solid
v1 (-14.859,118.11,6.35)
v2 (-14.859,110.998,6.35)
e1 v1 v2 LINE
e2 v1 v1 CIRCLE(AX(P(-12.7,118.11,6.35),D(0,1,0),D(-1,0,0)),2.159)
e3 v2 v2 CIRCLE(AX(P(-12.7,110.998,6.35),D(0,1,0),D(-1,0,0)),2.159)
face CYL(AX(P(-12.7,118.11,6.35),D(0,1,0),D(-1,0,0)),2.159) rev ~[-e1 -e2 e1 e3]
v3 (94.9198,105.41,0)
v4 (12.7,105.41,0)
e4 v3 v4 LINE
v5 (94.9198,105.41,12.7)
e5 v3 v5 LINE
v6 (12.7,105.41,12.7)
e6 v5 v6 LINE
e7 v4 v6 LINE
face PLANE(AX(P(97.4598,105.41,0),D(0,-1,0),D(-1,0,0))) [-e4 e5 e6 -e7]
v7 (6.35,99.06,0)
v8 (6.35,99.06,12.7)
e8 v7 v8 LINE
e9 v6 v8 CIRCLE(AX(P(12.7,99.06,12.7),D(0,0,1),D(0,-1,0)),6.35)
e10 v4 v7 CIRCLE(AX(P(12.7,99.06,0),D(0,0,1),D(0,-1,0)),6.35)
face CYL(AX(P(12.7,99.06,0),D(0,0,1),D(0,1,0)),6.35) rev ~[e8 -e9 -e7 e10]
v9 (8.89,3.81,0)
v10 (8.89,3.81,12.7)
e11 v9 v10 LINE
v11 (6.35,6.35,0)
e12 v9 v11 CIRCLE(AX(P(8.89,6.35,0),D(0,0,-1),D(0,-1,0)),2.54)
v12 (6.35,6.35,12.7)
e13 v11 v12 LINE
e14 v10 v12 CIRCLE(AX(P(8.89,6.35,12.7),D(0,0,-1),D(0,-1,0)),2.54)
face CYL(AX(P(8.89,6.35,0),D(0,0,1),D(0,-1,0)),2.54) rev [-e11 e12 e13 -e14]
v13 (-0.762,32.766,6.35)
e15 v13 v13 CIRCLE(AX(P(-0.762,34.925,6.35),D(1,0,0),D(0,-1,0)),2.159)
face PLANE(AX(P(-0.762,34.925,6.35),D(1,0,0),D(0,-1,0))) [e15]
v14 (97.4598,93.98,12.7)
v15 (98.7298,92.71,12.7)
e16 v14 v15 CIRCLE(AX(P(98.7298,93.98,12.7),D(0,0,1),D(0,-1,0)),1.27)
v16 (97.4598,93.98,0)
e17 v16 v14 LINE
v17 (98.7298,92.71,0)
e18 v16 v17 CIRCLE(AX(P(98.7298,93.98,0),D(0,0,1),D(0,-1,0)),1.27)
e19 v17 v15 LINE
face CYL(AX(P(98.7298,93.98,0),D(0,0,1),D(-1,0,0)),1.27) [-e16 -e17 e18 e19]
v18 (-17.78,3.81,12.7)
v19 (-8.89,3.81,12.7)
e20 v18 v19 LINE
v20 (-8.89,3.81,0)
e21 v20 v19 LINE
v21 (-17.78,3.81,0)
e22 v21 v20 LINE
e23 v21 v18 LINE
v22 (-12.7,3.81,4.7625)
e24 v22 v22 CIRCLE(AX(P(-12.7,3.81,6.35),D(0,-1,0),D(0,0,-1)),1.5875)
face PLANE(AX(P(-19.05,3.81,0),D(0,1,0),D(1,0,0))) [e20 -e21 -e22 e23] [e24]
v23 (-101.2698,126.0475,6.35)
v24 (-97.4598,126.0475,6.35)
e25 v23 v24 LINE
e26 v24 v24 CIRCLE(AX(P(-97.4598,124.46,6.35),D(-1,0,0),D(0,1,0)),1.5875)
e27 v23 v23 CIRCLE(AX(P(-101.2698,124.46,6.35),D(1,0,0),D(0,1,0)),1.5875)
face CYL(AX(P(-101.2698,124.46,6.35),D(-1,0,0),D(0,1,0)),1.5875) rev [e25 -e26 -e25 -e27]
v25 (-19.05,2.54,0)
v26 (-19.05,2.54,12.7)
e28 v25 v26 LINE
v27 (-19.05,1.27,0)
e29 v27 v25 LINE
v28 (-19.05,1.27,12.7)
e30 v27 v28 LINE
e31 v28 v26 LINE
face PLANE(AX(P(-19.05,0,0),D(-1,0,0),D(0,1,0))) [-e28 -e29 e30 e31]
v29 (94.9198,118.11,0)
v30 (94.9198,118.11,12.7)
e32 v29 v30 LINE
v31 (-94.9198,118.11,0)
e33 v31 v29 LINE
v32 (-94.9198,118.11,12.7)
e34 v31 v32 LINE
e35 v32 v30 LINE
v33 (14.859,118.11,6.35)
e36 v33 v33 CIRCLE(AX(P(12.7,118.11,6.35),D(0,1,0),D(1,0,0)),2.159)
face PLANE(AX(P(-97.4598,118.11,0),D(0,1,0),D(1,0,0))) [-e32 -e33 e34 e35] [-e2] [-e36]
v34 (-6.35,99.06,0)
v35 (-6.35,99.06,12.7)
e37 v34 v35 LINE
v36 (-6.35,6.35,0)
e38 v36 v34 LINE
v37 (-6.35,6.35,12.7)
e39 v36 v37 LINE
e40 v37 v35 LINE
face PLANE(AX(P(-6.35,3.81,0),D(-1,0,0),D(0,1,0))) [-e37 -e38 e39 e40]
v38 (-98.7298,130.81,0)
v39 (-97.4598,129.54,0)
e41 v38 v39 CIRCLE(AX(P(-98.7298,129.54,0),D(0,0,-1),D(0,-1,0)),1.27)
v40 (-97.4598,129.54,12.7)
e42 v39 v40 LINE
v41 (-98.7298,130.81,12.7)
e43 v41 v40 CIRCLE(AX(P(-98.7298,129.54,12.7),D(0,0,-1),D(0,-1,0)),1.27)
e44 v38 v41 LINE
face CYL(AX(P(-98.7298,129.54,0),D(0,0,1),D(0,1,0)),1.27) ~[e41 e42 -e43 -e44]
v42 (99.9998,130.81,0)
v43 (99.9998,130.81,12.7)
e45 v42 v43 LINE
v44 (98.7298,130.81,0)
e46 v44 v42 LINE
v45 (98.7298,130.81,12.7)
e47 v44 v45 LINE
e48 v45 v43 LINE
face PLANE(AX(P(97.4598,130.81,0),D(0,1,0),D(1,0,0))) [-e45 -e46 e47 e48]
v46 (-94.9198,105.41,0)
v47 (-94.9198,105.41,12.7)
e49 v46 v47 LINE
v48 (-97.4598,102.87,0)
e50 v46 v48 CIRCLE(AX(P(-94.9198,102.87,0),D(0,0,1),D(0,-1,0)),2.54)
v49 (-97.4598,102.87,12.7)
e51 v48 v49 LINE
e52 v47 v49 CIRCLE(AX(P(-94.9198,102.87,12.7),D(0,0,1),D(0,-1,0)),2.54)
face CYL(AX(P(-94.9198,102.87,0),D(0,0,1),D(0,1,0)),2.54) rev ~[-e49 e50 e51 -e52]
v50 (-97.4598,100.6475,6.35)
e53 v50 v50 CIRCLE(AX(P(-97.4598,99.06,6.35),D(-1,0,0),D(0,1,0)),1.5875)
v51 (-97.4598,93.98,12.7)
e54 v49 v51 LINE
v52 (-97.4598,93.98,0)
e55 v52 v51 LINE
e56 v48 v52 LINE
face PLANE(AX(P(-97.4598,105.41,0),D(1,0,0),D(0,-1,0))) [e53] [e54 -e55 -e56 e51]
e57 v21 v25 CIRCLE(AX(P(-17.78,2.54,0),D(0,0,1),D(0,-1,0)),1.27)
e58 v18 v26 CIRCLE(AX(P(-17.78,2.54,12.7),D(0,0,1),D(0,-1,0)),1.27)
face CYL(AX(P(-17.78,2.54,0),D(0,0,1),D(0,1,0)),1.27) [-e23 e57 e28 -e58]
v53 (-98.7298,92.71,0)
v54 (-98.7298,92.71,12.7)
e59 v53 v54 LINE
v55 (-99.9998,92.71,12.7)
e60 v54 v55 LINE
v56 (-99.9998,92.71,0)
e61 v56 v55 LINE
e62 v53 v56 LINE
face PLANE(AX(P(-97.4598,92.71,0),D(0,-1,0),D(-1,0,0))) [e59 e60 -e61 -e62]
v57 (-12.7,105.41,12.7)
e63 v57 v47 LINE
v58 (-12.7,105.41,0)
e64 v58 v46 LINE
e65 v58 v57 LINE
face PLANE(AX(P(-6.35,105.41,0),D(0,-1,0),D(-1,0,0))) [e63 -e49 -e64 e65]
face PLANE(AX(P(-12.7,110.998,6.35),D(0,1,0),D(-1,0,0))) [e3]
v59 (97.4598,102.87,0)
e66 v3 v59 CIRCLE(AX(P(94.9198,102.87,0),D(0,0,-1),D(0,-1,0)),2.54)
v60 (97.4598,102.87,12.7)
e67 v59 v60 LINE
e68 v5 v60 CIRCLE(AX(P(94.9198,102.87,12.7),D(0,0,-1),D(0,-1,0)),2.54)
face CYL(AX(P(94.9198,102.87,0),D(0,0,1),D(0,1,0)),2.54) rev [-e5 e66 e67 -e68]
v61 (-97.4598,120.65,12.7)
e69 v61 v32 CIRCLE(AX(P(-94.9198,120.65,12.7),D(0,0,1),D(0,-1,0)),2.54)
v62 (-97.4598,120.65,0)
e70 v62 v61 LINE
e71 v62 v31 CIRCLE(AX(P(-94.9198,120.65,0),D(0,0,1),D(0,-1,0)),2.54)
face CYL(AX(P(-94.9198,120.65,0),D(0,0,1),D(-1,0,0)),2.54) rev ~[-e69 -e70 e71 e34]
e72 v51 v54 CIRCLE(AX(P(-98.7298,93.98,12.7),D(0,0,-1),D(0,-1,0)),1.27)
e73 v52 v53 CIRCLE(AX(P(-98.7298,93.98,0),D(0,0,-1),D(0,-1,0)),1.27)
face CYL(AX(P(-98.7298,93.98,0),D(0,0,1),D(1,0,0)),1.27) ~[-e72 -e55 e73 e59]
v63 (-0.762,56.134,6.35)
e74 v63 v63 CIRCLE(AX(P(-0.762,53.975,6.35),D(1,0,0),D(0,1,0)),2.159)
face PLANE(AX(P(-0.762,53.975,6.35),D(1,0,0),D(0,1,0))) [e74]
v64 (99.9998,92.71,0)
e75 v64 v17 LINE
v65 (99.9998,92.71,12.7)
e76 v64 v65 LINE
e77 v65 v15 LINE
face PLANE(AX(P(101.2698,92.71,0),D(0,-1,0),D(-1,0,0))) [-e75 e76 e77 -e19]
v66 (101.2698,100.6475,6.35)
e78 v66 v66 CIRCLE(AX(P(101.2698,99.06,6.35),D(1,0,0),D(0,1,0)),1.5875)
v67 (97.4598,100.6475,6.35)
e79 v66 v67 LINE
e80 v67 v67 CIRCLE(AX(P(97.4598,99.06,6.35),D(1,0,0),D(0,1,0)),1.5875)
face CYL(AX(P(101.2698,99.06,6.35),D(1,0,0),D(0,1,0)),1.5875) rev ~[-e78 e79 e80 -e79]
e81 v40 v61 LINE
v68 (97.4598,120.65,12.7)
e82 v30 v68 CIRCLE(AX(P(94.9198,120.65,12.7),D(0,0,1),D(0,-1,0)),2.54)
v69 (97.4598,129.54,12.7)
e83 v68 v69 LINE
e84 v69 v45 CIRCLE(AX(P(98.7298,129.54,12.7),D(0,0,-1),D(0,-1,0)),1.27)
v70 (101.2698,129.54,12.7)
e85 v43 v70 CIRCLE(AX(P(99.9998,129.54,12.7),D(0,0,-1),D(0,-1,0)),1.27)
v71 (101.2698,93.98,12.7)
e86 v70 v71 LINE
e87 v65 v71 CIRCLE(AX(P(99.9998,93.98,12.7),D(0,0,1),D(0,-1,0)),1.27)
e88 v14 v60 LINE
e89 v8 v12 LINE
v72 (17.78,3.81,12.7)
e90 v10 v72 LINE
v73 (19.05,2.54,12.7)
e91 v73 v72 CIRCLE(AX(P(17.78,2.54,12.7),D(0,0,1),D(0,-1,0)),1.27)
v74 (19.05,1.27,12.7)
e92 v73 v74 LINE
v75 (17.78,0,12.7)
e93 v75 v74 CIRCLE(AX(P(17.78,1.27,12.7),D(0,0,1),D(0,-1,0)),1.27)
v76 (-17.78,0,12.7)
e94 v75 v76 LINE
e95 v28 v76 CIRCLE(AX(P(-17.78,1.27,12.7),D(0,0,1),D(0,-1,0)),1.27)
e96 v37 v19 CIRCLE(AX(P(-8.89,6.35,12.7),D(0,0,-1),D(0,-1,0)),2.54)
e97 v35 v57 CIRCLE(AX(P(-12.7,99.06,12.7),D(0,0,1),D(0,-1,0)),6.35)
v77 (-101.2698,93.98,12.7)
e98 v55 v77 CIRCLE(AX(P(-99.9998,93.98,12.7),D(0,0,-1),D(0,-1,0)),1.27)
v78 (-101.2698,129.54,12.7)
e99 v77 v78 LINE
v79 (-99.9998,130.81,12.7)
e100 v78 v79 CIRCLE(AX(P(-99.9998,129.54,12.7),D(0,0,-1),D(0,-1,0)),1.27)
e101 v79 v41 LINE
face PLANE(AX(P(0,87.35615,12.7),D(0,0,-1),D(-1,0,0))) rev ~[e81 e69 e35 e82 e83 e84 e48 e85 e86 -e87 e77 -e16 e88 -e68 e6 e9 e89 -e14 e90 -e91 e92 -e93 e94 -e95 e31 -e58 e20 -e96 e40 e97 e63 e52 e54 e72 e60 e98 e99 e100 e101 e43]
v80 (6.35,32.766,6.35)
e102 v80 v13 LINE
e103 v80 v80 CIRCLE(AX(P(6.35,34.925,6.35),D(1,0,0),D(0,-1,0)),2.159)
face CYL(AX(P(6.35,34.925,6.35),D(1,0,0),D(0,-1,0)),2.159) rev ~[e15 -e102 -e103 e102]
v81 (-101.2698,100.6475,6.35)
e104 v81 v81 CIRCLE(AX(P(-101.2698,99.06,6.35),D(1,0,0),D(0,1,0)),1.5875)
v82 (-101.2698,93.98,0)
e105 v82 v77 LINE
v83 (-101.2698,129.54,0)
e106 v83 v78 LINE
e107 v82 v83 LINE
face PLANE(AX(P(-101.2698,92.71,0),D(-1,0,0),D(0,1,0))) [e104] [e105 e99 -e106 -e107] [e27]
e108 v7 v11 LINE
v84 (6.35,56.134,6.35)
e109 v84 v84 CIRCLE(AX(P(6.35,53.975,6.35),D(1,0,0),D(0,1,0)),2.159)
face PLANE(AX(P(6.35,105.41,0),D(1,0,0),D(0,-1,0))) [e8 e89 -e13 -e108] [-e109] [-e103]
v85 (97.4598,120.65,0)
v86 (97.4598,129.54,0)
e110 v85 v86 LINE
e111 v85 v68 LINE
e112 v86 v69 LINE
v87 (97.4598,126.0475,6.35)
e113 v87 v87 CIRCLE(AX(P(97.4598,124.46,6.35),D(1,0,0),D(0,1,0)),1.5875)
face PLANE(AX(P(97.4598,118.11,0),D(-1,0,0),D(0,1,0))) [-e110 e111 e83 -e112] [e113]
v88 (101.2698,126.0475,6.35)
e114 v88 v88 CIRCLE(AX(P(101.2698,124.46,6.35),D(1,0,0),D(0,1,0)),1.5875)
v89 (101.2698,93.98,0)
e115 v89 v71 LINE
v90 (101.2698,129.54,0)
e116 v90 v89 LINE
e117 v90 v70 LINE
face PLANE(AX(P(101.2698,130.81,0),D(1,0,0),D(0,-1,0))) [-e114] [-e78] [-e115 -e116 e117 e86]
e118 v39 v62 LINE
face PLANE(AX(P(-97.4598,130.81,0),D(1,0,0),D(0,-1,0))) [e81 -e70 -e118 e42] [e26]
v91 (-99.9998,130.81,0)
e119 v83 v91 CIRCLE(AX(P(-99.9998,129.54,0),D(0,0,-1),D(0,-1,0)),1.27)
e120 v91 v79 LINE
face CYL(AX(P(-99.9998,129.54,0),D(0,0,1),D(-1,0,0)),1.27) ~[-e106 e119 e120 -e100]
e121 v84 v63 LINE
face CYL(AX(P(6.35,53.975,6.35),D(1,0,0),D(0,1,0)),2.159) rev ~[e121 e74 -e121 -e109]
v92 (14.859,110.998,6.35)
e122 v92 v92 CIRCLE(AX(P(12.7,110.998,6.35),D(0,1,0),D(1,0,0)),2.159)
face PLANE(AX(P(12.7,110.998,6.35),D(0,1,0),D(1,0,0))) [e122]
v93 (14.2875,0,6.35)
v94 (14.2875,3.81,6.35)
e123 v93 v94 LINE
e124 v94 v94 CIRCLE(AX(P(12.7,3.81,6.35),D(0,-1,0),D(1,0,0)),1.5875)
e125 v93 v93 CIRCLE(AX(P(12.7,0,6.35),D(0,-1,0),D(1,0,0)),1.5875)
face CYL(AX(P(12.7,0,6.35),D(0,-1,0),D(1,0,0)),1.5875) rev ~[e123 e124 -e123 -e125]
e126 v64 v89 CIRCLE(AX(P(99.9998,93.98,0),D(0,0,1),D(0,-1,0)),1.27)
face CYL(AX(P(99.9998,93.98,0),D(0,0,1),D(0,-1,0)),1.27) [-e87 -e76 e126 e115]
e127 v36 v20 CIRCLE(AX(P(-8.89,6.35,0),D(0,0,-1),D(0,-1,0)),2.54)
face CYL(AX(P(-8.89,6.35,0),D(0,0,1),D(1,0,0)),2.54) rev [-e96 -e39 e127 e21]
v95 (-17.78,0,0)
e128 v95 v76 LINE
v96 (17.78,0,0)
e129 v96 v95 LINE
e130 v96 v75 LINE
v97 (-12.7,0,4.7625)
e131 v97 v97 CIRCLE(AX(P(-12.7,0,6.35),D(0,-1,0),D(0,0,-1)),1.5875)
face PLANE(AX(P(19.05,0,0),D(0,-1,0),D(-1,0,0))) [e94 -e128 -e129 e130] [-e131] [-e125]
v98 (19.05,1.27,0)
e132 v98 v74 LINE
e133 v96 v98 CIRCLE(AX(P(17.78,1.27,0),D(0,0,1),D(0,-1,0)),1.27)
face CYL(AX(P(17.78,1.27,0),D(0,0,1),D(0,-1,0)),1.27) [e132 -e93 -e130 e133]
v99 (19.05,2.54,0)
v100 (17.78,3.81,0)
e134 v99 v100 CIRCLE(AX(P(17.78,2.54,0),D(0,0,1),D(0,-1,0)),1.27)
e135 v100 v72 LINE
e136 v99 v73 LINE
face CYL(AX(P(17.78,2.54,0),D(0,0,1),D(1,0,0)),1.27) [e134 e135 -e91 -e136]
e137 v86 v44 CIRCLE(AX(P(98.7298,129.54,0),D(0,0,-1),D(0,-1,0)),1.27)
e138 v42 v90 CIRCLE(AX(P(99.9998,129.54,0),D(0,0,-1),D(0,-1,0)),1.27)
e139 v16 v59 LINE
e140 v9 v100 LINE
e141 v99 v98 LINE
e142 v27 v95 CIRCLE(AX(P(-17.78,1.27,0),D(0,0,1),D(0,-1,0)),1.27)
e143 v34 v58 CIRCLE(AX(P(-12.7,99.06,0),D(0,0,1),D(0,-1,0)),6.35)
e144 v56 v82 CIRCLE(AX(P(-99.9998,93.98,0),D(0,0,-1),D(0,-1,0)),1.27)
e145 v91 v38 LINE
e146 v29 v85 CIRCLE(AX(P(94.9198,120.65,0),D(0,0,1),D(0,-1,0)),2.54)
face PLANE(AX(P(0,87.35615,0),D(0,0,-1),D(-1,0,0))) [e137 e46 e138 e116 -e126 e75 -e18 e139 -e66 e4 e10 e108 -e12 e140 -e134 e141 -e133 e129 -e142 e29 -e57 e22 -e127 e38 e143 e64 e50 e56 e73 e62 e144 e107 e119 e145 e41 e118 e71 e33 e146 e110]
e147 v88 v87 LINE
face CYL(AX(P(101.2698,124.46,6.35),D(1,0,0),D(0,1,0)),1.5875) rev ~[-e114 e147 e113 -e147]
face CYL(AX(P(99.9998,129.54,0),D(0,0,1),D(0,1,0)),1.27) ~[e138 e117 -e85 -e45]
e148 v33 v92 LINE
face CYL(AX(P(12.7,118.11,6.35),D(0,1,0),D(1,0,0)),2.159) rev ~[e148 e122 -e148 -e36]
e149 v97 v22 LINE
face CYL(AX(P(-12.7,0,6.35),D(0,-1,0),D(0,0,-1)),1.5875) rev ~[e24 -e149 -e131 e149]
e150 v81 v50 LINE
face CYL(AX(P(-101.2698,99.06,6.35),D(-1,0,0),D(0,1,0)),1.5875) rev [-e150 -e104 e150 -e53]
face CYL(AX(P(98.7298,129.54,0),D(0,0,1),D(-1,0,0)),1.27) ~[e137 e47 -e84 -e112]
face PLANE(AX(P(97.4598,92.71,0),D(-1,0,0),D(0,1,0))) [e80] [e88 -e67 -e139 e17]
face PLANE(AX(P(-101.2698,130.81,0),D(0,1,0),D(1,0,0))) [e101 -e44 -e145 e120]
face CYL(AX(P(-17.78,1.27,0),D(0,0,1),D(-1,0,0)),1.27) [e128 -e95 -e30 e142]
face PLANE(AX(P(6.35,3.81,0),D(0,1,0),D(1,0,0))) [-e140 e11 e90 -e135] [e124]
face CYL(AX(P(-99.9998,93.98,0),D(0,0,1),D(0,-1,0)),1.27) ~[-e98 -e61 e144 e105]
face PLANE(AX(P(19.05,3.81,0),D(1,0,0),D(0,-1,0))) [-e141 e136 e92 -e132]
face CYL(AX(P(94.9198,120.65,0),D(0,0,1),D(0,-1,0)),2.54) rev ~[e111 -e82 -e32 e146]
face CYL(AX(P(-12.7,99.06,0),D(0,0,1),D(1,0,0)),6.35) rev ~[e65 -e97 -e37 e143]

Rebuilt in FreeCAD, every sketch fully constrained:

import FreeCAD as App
import Part
import Sketcher
from FreeCAD import Vector
Q = App.Units.Quantity


def edges_at(feature, points):
    """Names of the edges that pass closest to the given points."""
    edges = feature.Shape.Edges
    near = lambda p: min(range(len(edges)), key=lambda i: edges[i].distToShape(Part.Vertex(*p))[0])
    return sorted({f"Edge{near(p) + 1}" for p in points})


def add_polygon(sketch, points):
    """Adds a closed chain of lines whose ends are joined by coincident constraints."""
    first, n = sketch.GeometryCount, len(points)
    for a, b in zip(points, points[1:] + points[:1]):
        sketch.addGeometry(Part.LineSegment(App.Vector(*a, 0), App.Vector(*b, 0)), False)
    for i in range(n):
        sketch.addConstraint(Sketcher.Constraint("Coincident", first + i, 2, first + (i + 1) % n, 1))

doc = App.newDocument("Part")
params = doc.addObject("Spreadsheet::Sheet", "Params")
for row, (alias, value) in enumerate([
    ("sketch1_height", "4 in"),
    ("sketch1_width", "1.5 in"),
    ("sketch1_width2", "0.5 in"),
    ("sketch1_width3", "0.15 in"),
    ("sketch1_width4", "3.587 in"),
    ("pad1_length", "0.5 in"),
    ("sketch2_diameter", "0.125 in"),
    ("pocket1_length", "0.25 in"),
    ("sketch3_diameter", "0.125 in"),
    ("pocket2_length", "0.15 in"),
    ("fillet_radius", "0.25 in"),
    ("fillet2_radius", "0.1 in"),
    ("sketch4_diameter", "0.17 in"),
    ("pocket3_length", "0.28 in"),
    ("sketch5_diameter", "0.17 in"),
    ("pocket4_length", "0.28 in"),
    ("fillet3_radius", "0.05 in"),
], start=1):
    params.set(f"A{row}", alias)
    params.set(f"B{row}", "=" + value)
    params.setAlias(f"B{row}", alias)

body = doc.addObject("PartDesign::Body", "Body")

sketch1 = body.newObject("Sketcher::SketchObject", "Sketch")
sketch1.AttachmentSupport = (doc.getObject("XY_Plane"), [""])
sketch1.MapMode = "FlatFace"
add_polygon(sketch1, [(-19.1, 0), (19.1, 0), (19.1, 3.8), (6.3, 3.8), (6.3, 105.4), (97.5, 105.4), (97.5, 92.7), (101.3, 92.7), (101.3, 130.8), (97.5, 130.8), (97.5, 118.1), (-97.5, 118.1), (-97.5, 130.8), (-101.3, 130.8), (-101.3, 92.7), (-97.5, 92.7), (-97.5, 105.4), (-6.3, 105.4), (-6.3, 3.8), (-19.1, 3.8)])
sketch1.addConstraint([
    Sketcher.Constraint("Horizontal", 0),
    Sketcher.Constraint("Vertical", 1),
    Sketcher.Constraint("Horizontal", 2),
    Sketcher.Constraint("Vertical", 3),
    Sketcher.Constraint("Horizontal", 4),
    Sketcher.Constraint("Vertical", 5),
    Sketcher.Constraint("Horizontal", 6),
    Sketcher.Constraint("Vertical", 7),
    Sketcher.Constraint("Horizontal", 8),
    Sketcher.Constraint("Vertical", 9),
    Sketcher.Constraint("Horizontal", 10),
    Sketcher.Constraint("Vertical", 11),
    Sketcher.Constraint("Horizontal", 12),
    Sketcher.Constraint("Vertical", 13),
    Sketcher.Constraint("Horizontal", 14),
    Sketcher.Constraint("Vertical", 15),
    Sketcher.Constraint("Horizontal", 16),
    Sketcher.Constraint("Vertical", 17),
    Sketcher.Constraint("Horizontal", 18),
    Sketcher.Constraint("Vertical", 19),
    Sketcher.Constraint("Symmetric", 0, 2, 19, 2, -1, 1),
    Sketcher.Constraint("Symmetric", 8, 2, 11, 2, -2),
    Sketcher.Constraint("Symmetric", 6, 2, 13, 2, -2),
    Sketcher.Constraint("Symmetric", 4, 2, 15, 2, -2),
    Sketcher.Constraint("Symmetric", 2, 2, 17, 2, -2),
    Sketcher.Constraint("Vertical", 5, 2, 8, 2),
    Sketcher.Constraint("Equal", 14, 1),
    Sketcher.Constraint("Equal", 18, 5),
    Sketcher.Constraint("Equal", 0, 7),
    Sketcher.Constraint("Equal", 5, 9),
    Sketcher.Constraint("DistanceY", 3, 1, 3, 2, Q("4 in")),
    Sketcher.Constraint("DistanceX", 0, 1, 0, 2, Q("1.5 in")),
    Sketcher.Constraint("DistanceX", 2, 2, 2, 1, Q("0.5 in")),
    Sketcher.Constraint("DistanceX", 6, 1, 6, 2, Q("0.15 in")),
    Sketcher.Constraint("DistanceX", 4, 1, 4, 2, Q("3.587 in")),
])
sketch1.setExpression("Constraints[50]", "Params.sketch1_height")
sketch1.setExpression("Constraints[51]", "Params.sketch1_width")
sketch1.setExpression("Constraints[52]", "Params.sketch1_width2")
sketch1.setExpression("Constraints[53]", "Params.sketch1_width3")
sketch1.setExpression("Constraints[54]", "Params.sketch1_width4")
pad1 = body.newObject("PartDesign::Pad", "Pad")
pad1.Profile = sketch1
pad1.setExpression("Length", "Params.pad1_length")

sketch2 = body.newObject("Sketcher::SketchObject", "Sketch001")
sketch2.AttachmentSupport = (doc.getObject("YZ_Plane"), [""])
sketch2.MapMode = "FlatFace"
sketch2.AttachmentOffset = App.Placement(Vector(0, 0, 3.987 * 25.4), App.Rotation())
sketch2.addGeometry([
    Part.Circle(Vector(124.5, 6.3, 0), Vector(0, 0, 1), 1.6),
    Part.Circle(Vector(99.1, 6.3, 0), Vector(0, 0, 1), 1.6),
], False)
sketch2.addConstraint([
    Sketcher.Constraint("Equal", 0, 1),
    Sketcher.Constraint("Horizontal", 0, 3, 1, 3),
    Sketcher.Constraint("Diameter", 0, Q("0.125 in")),
    Sketcher.Constraint("DistanceX", 1, 3, 0, 3, Q("1 in")),
    Sketcher.Constraint("DistanceX", -1, 1, 0, 3, Q("4.9 in")),
    Sketcher.Constraint("DistanceY", -1, 1, 0, 3, Q("0.25 in")),
])
sketch2.setExpression("Constraints[2]", "Params.sketch2_diameter")
pocket1 = body.newObject("PartDesign::Pocket", "Pocket")
pocket1.Profile = sketch2
pocket1.setExpression("Length", "Params.pocket1_length")
doc.recompute()

mirrored = body.newObject("PartDesign::Mirrored", "Mirrored")
mirrored.Originals = [pocket1]
mirrored.MirrorPlane = (doc.getObject("YZ_Plane"), [""])
body.Tip = mirrored

sketch3 = body.newObject("Sketcher::SketchObject", "Sketch002")
sketch3.AttachmentSupport = (doc.getObject("XZ_Plane"), [""])
sketch3.MapMode = "FlatFace"
sketch3.addGeometry([
    Part.Circle(Vector(12.7, 6.3, 0), Vector(0, 0, 1), 1.6),
    Part.Circle(Vector(-12.7, 6.3, 0), Vector(0, 0, 1), 1.6),
], False)
sketch3.addConstraint([
    Sketcher.Constraint("Equal", 0, 1),
    Sketcher.Constraint("Symmetric", 0, 3, 1, 3, -2),
    Sketcher.Constraint("Diameter", 0, Q("0.125 in")),
    Sketcher.Constraint("DistanceX", 1, 3, 0, 3, Q("1 in")),
    Sketcher.Constraint("DistanceY", -1, 1, 0, 3, Q("0.25 in")),
])
sketch3.setExpression("Constraints[2]", "Params.sketch3_diameter")
pocket2 = body.newObject("PartDesign::Pocket", "Pocket001")
pocket2.Profile = sketch3
pocket2.setExpression("Length", "Params.pocket2_length")
doc.recompute()

fillet = body.newObject("PartDesign::Fillet", "Fillet")
fillet.Base = (pocket2, edges_at(pocket2, [(-6.35, 105.41, 6.35), (6.35, 105.41, 6.35)]))
fillet.setExpression("Radius", "Params.fillet_radius")
doc.recompute()

fillet2 = body.newObject("PartDesign::Fillet", "Fillet001")
fillet2.Base = (fillet, edges_at(fillet, [
    (-6.35, 3.81, 6.35),
    (-97.46, 105.41, 6.35),
    (-97.46, 118.11, 6.35),
    (97.46, 118.11, 6.35),
    (97.46, 105.41, 6.35),
    (6.35, 3.81, 6.35),
]))
fillet2.setExpression("Radius", "Params.fillet2_radius")

sketch4 = body.newObject("Sketcher::SketchObject", "Sketch003")
sketch4.AttachmentSupport = (doc.getObject("YZ_Plane"), [""])
sketch4.MapMode = "FlatFace"
sketch4.AttachmentOffset = App.Placement(Vector(0, 0, 0.25 * 25.4), App.Rotation())
sketch4.addGeometry([
    Part.Circle(Vector(54, 6.3, 0), Vector(0, 0, 1), 2.2),
    Part.Circle(Vector(34.9, 6.3, 0), Vector(0, 0, 1), 2.2),
], False)
sketch4.addConstraint([
    Sketcher.Constraint("Equal", 0, 1),
    Sketcher.Constraint("Horizontal", 0, 3, 1, 3),
    Sketcher.Constraint("Diameter", 0, Q("0.17 in")),
    Sketcher.Constraint("DistanceY", -1, 1, 0, 3, Q("0.25 in")),
    Sketcher.Constraint("DistanceX", 1, 3, 0, 3, Q("0.75 in")),
    Sketcher.Constraint("DistanceX", -1, 1, 0, 3, Q("2.125 in")),
])
sketch4.setExpression("Constraints[2]", "Params.sketch4_diameter")
pocket3 = body.newObject("PartDesign::Pocket", "Pocket002")
pocket3.Profile = sketch4
pocket3.setExpression("Length", "Params.pocket3_length")

sketch5 = body.newObject("Sketcher::SketchObject", "Sketch004")
sketch5.AttachmentSupport = (doc.getObject("XZ_Plane"), [""])
sketch5.MapMode = "FlatFace"
sketch5.AttachmentOffset = App.Placement(Vector(0, 0, -4.65 * 25.4), App.Rotation())
sketch5.addGeometry([
    Part.Circle(Vector(-12.7, 6.3, 0), Vector(0, 0, 1), 2.2),
    Part.Circle(Vector(12.7, 6.3, 0), Vector(0, 0, 1), 2.2),
], False)
sketch5.addConstraint([
    Sketcher.Constraint("Equal", 0, 1),
    Sketcher.Constraint("Symmetric", 0, 3, 1, 3, -2),
    Sketcher.Constraint("Diameter", 0, Q("0.17 in")),
    Sketcher.Constraint("DistanceX", 0, 3, 1, 3, Q("1 in")),
    Sketcher.Constraint("DistanceY", -1, 1, 0, 3, Q("0.25 in")),
])
sketch5.setExpression("Constraints[2]", "Params.sketch5_diameter")
pocket4 = body.newObject("PartDesign::Pocket", "Pocket003")
pocket4.Profile = sketch5
pocket4.setExpression("Length", "Params.pocket4_length")
pocket4.Reversed = True
doc.recompute()

fillet3 = body.newObject("PartDesign::Fillet", "Fillet002")
fillet3.Base = (pocket4, edges_at(pocket4, [
    (-19.05, 3.81, 6.35),
    (-97.46, 92.71, 6.35),
    (-101.27, 92.71, 6.35),
    (-101.27, 130.81, 6.35),
    (-97.46, 130.81, 6.35),
    (97.46, 130.81, 6.35),
    (101.27, 130.81, 6.35),
    (101.27, 92.71, 6.35),
    (97.46, 92.71, 6.35),
    (19.05, 3.81, 6.35),
    (19.05, 0, 6.35),
    (-19.05, 0, 6.35),
]))
fillet3.setExpression("Radius", "Params.fillet3_radius")

doc.recompute()
